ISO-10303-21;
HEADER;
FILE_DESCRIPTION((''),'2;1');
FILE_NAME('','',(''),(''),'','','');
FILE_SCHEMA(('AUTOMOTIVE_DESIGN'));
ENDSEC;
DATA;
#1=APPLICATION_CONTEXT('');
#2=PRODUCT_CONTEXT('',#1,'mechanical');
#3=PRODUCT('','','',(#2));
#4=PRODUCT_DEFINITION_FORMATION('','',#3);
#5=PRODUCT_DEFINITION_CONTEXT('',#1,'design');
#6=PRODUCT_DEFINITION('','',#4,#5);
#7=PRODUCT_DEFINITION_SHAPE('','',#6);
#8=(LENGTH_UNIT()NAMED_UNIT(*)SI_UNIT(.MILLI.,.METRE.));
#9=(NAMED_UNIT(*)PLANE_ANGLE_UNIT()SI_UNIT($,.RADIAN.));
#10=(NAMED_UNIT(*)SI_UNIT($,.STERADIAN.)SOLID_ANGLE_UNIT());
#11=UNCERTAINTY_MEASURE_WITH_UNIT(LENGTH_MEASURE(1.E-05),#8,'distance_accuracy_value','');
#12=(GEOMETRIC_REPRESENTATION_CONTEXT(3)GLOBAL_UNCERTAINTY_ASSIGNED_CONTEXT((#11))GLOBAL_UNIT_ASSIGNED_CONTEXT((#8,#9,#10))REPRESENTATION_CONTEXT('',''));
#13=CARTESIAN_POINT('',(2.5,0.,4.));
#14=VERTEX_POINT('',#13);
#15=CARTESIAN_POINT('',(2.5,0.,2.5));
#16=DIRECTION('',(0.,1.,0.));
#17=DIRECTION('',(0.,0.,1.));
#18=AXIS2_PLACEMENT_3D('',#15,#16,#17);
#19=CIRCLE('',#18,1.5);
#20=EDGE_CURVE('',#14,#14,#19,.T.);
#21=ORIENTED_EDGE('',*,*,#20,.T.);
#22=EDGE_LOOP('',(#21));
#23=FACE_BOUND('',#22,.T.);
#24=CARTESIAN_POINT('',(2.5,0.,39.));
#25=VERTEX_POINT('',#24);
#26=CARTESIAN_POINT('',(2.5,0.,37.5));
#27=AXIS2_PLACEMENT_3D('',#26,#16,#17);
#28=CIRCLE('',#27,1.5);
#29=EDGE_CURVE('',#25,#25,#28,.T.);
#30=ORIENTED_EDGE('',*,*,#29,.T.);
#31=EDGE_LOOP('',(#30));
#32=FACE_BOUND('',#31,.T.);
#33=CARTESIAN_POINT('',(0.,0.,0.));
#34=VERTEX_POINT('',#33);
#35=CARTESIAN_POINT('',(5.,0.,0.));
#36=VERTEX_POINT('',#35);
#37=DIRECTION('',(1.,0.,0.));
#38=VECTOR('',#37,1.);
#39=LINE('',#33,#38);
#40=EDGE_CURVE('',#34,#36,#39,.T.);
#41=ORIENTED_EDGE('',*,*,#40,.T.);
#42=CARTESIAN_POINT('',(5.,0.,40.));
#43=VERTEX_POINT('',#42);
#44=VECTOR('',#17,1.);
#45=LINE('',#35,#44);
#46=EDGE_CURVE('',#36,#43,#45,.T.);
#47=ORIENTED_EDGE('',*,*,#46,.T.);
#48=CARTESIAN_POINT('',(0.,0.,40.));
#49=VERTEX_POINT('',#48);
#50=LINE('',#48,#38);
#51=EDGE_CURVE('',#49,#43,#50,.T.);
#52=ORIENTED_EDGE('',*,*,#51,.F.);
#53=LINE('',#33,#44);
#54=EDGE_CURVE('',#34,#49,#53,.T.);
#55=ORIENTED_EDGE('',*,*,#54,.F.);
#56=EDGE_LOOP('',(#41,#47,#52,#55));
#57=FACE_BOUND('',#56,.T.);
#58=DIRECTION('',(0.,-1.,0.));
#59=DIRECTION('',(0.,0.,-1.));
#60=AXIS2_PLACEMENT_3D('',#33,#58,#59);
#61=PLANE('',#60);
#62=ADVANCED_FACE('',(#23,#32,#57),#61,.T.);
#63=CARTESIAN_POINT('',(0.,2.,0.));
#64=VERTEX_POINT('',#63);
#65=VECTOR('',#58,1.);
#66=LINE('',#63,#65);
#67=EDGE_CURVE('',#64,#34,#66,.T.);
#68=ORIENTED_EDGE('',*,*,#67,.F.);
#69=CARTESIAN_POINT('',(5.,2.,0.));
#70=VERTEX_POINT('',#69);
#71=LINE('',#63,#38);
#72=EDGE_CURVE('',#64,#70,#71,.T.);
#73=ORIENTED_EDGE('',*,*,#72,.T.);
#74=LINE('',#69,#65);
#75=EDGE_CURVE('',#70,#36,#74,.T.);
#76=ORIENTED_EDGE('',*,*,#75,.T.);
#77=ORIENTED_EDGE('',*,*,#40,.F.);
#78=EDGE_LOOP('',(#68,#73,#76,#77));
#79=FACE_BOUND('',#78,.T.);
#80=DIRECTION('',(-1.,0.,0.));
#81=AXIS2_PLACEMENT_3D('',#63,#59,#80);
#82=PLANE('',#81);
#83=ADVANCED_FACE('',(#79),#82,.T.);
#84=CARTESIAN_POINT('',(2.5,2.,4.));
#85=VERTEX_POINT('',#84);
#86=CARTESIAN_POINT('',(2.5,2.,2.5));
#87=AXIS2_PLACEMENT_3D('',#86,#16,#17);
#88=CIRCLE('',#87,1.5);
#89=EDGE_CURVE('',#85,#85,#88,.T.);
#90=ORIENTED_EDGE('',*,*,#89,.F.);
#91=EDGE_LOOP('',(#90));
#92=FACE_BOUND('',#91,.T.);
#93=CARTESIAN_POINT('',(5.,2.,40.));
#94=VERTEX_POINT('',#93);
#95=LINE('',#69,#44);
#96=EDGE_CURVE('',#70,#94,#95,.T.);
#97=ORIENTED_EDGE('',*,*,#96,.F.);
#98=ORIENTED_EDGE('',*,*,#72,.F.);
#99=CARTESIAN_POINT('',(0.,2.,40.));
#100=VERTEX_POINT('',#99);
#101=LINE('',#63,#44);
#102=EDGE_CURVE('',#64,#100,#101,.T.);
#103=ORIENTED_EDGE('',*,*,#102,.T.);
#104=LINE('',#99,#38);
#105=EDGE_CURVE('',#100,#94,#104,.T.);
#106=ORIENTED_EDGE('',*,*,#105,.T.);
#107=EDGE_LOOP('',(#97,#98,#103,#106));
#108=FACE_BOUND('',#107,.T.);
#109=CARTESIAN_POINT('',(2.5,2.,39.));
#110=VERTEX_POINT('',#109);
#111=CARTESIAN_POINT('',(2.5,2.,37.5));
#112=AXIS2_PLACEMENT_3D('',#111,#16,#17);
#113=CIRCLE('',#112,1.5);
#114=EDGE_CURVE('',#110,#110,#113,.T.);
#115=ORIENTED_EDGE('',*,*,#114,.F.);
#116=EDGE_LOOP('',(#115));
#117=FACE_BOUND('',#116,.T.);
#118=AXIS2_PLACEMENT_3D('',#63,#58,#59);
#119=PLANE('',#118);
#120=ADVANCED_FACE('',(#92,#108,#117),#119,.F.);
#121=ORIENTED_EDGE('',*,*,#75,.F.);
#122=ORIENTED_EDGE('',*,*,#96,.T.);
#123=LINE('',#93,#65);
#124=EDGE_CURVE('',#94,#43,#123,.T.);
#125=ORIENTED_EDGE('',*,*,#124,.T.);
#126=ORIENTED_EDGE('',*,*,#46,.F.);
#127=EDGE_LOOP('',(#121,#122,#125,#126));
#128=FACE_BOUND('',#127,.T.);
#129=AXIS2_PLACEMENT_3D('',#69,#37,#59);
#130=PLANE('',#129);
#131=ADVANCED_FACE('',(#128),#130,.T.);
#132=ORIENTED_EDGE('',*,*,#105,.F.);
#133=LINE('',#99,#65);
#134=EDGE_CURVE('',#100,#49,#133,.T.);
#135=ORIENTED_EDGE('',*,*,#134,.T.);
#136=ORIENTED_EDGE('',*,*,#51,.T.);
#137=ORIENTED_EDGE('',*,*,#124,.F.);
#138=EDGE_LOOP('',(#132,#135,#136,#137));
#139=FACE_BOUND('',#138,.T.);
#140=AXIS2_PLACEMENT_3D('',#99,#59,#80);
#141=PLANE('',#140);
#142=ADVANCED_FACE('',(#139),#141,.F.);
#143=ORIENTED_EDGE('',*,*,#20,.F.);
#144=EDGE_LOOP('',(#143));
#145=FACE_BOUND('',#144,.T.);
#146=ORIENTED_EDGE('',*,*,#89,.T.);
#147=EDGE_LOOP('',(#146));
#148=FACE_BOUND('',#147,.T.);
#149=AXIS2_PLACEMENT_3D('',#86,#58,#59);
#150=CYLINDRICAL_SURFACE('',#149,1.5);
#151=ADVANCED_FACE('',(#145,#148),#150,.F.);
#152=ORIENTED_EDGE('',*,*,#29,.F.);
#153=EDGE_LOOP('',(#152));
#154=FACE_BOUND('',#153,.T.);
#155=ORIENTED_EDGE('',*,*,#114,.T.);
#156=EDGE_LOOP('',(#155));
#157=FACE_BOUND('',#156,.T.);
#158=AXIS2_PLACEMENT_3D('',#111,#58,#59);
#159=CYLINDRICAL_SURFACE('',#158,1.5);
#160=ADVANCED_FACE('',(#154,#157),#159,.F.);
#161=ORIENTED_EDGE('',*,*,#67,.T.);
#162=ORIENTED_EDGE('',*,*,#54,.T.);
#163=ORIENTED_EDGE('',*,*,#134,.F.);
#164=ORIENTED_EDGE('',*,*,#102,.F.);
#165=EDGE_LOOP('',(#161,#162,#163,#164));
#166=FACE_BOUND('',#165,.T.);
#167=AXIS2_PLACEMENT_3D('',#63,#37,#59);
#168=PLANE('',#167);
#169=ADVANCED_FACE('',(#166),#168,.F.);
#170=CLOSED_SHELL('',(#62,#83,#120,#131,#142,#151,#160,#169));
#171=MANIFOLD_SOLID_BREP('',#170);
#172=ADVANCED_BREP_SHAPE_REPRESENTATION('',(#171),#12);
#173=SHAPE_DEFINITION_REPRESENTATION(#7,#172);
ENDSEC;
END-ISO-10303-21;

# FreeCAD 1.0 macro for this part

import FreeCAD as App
import Part
import Sketcher

V = App.Vector
Q = App.Units.Quantity


def add_polygon(sketch, points):
    """Adds a closed chain of lines whose ends are joined by coincident constraints."""
    first, n = sketch.GeometryCount, len(points)
    for a, b in zip(points, points[1:] + points[:1]):
        sketch.addGeometry(Part.LineSegment(App.Vector(*a, 0), App.Vector(*b, 0)), False)
    for i in range(n):
        sketch.addConstraint(Sketcher.Constraint("Coincident", first + i, 2, first + (i + 1) % n, 1))

doc = App.newDocument("Part")
body = doc.addObject("PartDesign::Body", "Body")

sketch1 = body.newObject("Sketcher::SketchObject", "Sketch")
sketch1.AttachmentSupport = (doc.getObject("XZ_Plane"), [""])
sketch1.MapMode = "FlatFace"
add_polygon(sketch1, [(0, 0), (0, 40), (5, 40), (5, 0)])
sketch1.addGeometry(Part.Circle(V(2.5, 37.5, 0), V(0, 0, 1), 1.5), False)
sketch1.addGeometry(Part.Circle(V(2.5, 2.5, 0), V(0, 0, 1), 1.5), False)
sketch1.addConstraint([
    Sketcher.Constraint("Vertical", 0),
    Sketcher.Constraint("Horizontal", 1),
    Sketcher.Constraint("Vertical", 2),
    Sketcher.Constraint("Horizontal", 3),
    Sketcher.Constraint("Coincident", 3, 2, -1, 1),
    Sketcher.Constraint("Equal", 4, 5),
    Sketcher.Constraint("Vertical", 4, 3, 5, 3),
    Sketcher.Constraint("Diameter", 4, Q("3 mm")),
    Sketcher.Constraint("DistanceX", 1, 1, 1, 2, Q("5 mm")),
    Sketcher.Constraint("DistanceY", 0, 1, 0, 2, Q("40 mm")),
    Sketcher.Constraint("DistanceY", 5, 3, 4, 3, Q("35 mm")),
    Sketcher.Constraint("DistanceX", -1, 1, 4, 3, Q("2.5 mm")),
    Sketcher.Constraint("DistanceY", -1, 1, 4, 3, Q("37.5 mm")),
])
pad1 = body.newObject("PartDesign::Pad", "Pad")
pad1.Profile = sketch1
pad1.Length = 2
pad1.Reversed = True

doc.recompute()
